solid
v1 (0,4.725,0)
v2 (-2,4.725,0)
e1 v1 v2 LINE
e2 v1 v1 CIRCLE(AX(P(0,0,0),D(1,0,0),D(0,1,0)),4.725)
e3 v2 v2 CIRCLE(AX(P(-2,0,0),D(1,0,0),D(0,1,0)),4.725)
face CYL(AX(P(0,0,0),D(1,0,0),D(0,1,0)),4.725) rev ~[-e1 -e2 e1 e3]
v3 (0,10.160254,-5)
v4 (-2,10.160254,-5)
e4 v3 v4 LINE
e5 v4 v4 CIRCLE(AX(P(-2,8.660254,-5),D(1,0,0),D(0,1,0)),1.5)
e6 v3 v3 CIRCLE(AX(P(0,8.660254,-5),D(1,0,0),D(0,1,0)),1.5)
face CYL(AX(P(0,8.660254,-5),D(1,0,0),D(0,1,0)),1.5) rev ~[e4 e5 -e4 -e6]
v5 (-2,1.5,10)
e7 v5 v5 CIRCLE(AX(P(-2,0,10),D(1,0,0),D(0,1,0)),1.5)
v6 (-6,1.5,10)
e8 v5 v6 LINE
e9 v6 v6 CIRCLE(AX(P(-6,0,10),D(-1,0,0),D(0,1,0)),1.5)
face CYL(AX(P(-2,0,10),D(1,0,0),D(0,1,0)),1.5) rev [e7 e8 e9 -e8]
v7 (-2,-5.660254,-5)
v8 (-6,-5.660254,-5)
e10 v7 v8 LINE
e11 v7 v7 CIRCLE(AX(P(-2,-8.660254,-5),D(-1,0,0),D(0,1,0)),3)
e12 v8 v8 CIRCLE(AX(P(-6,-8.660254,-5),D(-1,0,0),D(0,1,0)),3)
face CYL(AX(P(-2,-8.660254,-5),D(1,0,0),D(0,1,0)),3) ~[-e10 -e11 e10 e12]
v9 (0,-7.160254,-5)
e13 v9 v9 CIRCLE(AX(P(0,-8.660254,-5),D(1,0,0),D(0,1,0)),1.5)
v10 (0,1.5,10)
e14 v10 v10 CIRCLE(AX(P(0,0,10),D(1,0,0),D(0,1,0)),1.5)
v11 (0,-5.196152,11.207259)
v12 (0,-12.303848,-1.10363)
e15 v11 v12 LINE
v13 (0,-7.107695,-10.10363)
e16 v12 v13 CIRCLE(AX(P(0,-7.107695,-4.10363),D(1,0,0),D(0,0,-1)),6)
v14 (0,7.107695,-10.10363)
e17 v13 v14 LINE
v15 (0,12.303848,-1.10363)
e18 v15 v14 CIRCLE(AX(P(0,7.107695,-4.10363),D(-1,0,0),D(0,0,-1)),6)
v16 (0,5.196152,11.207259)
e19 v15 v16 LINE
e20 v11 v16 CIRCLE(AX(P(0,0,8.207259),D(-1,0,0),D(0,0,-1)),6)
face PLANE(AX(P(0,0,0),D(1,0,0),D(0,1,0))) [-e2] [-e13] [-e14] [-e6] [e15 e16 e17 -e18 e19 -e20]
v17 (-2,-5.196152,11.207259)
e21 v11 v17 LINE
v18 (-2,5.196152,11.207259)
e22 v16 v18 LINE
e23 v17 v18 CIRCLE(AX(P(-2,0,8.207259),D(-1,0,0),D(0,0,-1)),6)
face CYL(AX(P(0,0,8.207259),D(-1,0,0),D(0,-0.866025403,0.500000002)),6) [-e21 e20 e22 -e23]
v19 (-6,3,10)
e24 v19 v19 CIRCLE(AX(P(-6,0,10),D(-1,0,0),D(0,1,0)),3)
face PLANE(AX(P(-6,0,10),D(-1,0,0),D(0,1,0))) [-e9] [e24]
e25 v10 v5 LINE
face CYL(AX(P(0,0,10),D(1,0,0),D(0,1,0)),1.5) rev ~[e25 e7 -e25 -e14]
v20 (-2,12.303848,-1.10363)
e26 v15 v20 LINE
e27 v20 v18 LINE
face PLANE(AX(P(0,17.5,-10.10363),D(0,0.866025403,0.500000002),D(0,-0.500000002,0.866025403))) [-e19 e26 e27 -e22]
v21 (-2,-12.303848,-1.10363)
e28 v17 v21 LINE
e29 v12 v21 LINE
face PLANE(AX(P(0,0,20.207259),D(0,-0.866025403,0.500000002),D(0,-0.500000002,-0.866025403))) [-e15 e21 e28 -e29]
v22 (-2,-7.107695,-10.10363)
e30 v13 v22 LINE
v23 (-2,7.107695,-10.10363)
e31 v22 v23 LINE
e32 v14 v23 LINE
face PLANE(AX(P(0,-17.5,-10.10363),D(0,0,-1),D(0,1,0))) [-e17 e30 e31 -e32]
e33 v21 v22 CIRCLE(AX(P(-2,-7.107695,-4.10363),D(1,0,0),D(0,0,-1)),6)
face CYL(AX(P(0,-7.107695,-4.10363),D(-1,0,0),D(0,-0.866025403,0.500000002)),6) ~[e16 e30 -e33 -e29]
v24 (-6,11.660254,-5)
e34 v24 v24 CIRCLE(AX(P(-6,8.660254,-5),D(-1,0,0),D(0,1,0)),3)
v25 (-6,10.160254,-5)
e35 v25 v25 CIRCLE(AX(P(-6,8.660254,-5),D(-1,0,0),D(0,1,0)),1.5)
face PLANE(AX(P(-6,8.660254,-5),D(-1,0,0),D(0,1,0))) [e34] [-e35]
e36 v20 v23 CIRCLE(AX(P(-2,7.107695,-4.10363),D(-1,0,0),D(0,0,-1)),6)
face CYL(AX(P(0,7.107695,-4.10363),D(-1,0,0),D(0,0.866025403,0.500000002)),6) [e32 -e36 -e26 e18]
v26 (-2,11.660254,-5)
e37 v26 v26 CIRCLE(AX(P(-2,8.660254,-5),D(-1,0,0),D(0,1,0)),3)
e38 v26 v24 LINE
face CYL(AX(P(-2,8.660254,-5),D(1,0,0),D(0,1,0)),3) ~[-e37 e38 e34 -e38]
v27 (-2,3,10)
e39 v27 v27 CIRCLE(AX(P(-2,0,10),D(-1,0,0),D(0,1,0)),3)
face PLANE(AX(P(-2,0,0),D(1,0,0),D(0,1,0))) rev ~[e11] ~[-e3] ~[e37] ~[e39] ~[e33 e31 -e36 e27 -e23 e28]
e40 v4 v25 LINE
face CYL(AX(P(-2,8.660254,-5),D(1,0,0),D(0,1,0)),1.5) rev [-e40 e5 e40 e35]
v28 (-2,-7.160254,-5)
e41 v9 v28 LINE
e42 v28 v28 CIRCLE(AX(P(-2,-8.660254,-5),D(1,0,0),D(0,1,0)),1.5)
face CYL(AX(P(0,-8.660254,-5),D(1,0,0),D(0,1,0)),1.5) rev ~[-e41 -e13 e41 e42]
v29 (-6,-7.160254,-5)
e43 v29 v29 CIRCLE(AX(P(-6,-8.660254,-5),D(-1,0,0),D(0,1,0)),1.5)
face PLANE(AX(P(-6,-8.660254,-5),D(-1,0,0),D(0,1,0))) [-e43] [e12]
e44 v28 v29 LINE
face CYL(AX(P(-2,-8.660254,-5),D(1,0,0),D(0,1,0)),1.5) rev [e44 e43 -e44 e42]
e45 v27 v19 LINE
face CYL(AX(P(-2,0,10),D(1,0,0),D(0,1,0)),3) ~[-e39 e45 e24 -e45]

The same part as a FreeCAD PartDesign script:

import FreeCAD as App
import Part
import Sketcher
from FreeCAD import Vector
Q = App.Units.Quantity


def edges_at(feature, points):
    """Names of the edges that pass closest to the given points."""
    edges = feature.Shape.Edges
    near = lambda p: min(range(len(edges)), key=lambda i: edges[i].distToShape(Part.Vertex(*p))[0])
    return sorted({f"Edge{near(p) + 1}" for p in points})


def add_polygon(sketch, points):
    """Adds a closed chain of lines whose ends are joined by coincident constraints."""
    first, n = sketch.GeometryCount, len(points)
    for a, b in zip(points, points[1:] + points[:1]):
        sketch.addGeometry(Part.LineSegment(App.Vector(*a, 0), App.Vector(*b, 0)), False)
    for i in range(n):
        sketch.addConstraint(Sketcher.Constraint("Coincident", first + i, 2, first + (i + 1) % n, 1))

doc = App.newDocument("Part")
body = doc.addObject("PartDesign::Body", "Body")

# Sketch on YZ plane
sketch1 = body.newObject("Sketcher::SketchObject", "Sketch")
sketch1.AttachmentSupport = (doc.getObject("YZ_Plane"), [""])
sketch1.MapMode = "FlatFace"
add_polygon(sketch1, [(0, 20.2), (-17.5, -10.1), (17.5, -10.1)])  # lines 0-2
sketch1.addGeometry(Part.Circle(Vector(-8.7, -5, 0), Vector(0, 0, 1), 1.5), False)  # 3
sketch1.addGeometry(Part.Circle(Vector(8.7, -5, 0), Vector(0, 0, 1), 1.5), False)  # 4
sketch1.addGeometry(Part.Circle(Vector(0, 0, 0), Vector(0, 0, 1), 4.7), False)  # 5
sketch1.addGeometry(Part.Circle(Vector(0, 10, 0), Vector(0, 0, 1), 1.5), False)  # 6
sketch1.addConstraint([
    Sketcher.Constraint("Horizontal", 1),
    Sketcher.Constraint("Coincident", 5, 3, -1, 1),
    Sketcher.Constraint("Equal", 3, 4),
    Sketcher.Constraint("Equal", 4, 6),
    Sketcher.Constraint("Symmetric", 3, 3, 4, 3, -2),
    Sketcher.Constraint("PointOnObject", 6, 3, -2),
    Sketcher.Constraint("PointOnObject", 2, 2, -2),
    Sketcher.Constraint("Equal", 0, 2),
    Sketcher.Constraint("Diameter", 3, 3.0),
    Sketcher.Constraint("Diameter", 5, 9.45),
    Sketcher.Constraint("DistanceX", 1, 1, 1, 2, 35.0),
    Sketcher.Constraint("Angle", 0, Q("-120 deg")),
    Sketcher.Constraint("DistanceY", 3, 3, -1, 1, 5.0),
    Sketcher.Constraint("DistanceY", -1, 1, 6, 3, 10.0),
    Sketcher.Constraint("DistanceY", 0, 2, -1, 1, 10.10363),
    Sketcher.Constraint("DistanceX", 3, 3, 4, 3, 17.320508),
])
pad1 = body.newObject("PartDesign::Pad", "Pad")
pad1.Profile = sketch1
pad1.Length = 2
pad1.Reversed = True

# Sketch on YZ plane
sketch2 = body.newObject("Sketcher::SketchObject", "Sketch001")
sketch2.AttachmentSupport = (doc.getObject("YZ_Plane"), [""])
sketch2.MapMode = "FlatFace"
sketch2.AttachmentOffset = App.Placement(Vector(0, 0, -2), App.Rotation())
sketch2.addGeometry([
    Part.Circle(Vector(8.7, -5, 0), Vector(0, 0, 1), 3),  # 0
    Part.Circle(Vector(8.7, -5, 0), Vector(0, 0, 1), 1.5),  # 1
    Part.Circle(Vector(-8.7, -5, 0), Vector(0, 0, 1), 3),  # 2
    Part.Circle(Vector(-8.7, -5, 0), Vector(0, 0, 1), 1.5),  # 3
    Part.Circle(Vector(0, 10, 0), Vector(0, 0, 1), 3),  # 4
    Part.Circle(Vector(0, 10, 0), Vector(0, 0, 1), 1.5),  # 5
], False)
sketch2.addConstraint([
    Sketcher.Constraint("Coincident", 1, 3, 0, 3),
    Sketcher.Constraint("Coincident", 3, 3, 2, 3),
    Sketcher.Constraint("Coincident", 5, 3, 4, 3),
    Sketcher.Constraint("Equal", 0, 2),
    Sketcher.Constraint("Equal", 1, 3),
    Sketcher.Constraint("Equal", 2, 4),
    Sketcher.Constraint("Equal", 3, 5),
    Sketcher.Constraint("Symmetric", 0, 3, 2, 3, -2),
    Sketcher.Constraint("PointOnObject", 4, 3, -2),
    Sketcher.Constraint("Diameter", 0, 6.0),
    Sketcher.Constraint("Diameter", 1, 3.0),
    Sketcher.Constraint("DistanceY", 0, 3, -1, 1, 5.0),
    Sketcher.Constraint("DistanceY", -1, 1, 4, 3, 10.0),
    Sketcher.Constraint("DistanceX", 2, 3, 0, 3, 17.320508),
])
pad2 = body.newObject("PartDesign::Pad", "Pad001")
pad2.Profile = sketch2
pad2.Length = 4
pad2.Reversed = True
doc.recompute()

fillet = body.newObject("PartDesign::Fillet", "Fillet")
fillet.Base = (pad2, edges_at(pad2, [(-1, 0, 20.207), (-1, -17.5, -10.104), (-1, 17.5, -10.104)]))
fillet.Radius = 6

doc.recompute()
